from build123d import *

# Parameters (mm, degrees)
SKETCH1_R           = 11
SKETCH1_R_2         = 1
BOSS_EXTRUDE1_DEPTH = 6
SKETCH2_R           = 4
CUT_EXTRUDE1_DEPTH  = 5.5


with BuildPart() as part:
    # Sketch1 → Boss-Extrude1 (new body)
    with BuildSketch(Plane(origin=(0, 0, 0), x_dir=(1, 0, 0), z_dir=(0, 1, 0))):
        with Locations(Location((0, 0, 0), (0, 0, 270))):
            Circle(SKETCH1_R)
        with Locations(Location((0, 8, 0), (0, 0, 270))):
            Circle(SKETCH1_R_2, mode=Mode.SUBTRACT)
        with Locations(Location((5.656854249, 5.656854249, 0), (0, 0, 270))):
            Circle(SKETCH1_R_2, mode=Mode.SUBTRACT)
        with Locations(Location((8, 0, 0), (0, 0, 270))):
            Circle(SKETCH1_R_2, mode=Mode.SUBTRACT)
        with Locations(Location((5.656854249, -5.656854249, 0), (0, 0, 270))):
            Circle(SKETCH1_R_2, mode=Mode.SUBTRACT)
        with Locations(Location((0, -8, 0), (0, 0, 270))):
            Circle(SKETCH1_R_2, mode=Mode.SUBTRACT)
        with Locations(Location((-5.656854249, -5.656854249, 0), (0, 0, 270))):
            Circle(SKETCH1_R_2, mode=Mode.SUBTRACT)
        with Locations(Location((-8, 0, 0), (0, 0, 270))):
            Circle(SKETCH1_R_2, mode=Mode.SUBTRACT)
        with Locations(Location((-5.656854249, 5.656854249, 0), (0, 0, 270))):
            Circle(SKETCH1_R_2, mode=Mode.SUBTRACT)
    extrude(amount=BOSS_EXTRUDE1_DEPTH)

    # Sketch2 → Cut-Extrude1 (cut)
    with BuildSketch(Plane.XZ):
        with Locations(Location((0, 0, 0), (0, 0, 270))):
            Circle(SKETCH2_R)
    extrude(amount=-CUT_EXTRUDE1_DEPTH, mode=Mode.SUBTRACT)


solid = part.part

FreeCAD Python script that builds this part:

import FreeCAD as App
import Part
import Sketcher
from FreeCAD import Vector

doc = App.newDocument("Part")
body = doc.addObject("PartDesign::Body", "Body")

# Sketch on XZ plane
sketch1 = doc.addObject("Sketcher::SketchObject", "Sketch")
body.addObject(sketch1)
sketch1.AttachmentSupport = (doc.XZ_Plane, [""])
sketch1.MapMode = "FlatFace"
sketch1.addGeometry([
    Part.Circle(Vector(0, 0, 0), Vector(0, 0, 1), 11),  # 0
    Part.Circle(Vector(-5.7, -5.7, 0), Vector(0, 0, 1), 1),  # 1
    Part.Circle(Vector(0, -8, 0), Vector(0, 0, 1), 1),  # 2
    Part.Circle(Vector(-8, 0, 0), Vector(0, 0, 1), 1),  # 3
    Part.Circle(Vector(-5.7, 5.7, 0), Vector(0, 0, 1), 1),  # 4
    Part.Circle(Vector(5.7, -5.7, 0), Vector(0, 0, 1), 1),  # 5
    Part.Circle(Vector(8, 0, 0), Vector(0, 0, 1), 1),  # 6
    Part.Circle(Vector(0, 8, 0), Vector(0, 0, 1), 1),  # 7
    Part.Circle(Vector(5.7, 5.7, 0), Vector(0, 0, 1), 1),  # 8
], False)
sketch1.addConstraint([
    Sketcher.Constraint("Coincident", 0, 3, -1, 1),
    Sketcher.Constraint("Equal", 1, 2),
    Sketcher.Constraint("Equal", 2, 3),
    Sketcher.Constraint("Equal", 3, 4),
    Sketcher.Constraint("Equal", 4, 5),
    Sketcher.Constraint("Equal", 5, 6),
    Sketcher.Constraint("Equal", 6, 7),
    Sketcher.Constraint("Equal", 7, 8),
    Sketcher.Constraint("Symmetric", 4, 3, 5, 3, -1, 1),
    Sketcher.Constraint("Symmetric", 3, 3, 6, 3, -1, 1),
    Sketcher.Constraint("Symmetric", 2, 3, 7, 3, -1, 1),
    Sketcher.Constraint("Symmetric", 1, 3, 8, 3, -1, 1),
    Sketcher.Constraint("Symmetric", 1, 3, 5, 3, -2),
    Sketcher.Constraint("PointOnObject", 2, 3, -2),
    Sketcher.Constraint("PointOnObject", 3, 3, -1),
    Sketcher.Constraint("Diameter", 0, 22.0),
    Sketcher.Constraint("Diameter", 1, 2.0),
    Sketcher.Constraint("DistanceY", 2, 3, -1, 1, 8.0),
    Sketcher.Constraint("DistanceX", 3, 3, -1, 1, 8.0),
    Sketcher.Constraint("DistanceY", 1, 3, 4, 3, 11.313708),
    Sketcher.Constraint("DistanceX", 1, 3, 5, 3, 11.313708),
])
pad1 = doc.addObject("PartDesign::Pad", "Pad")
body.addObject(pad1)
pad1.Profile = sketch1
pad1.Length = 6
pad1.Reversed = True

# Sketch on XZ plane
sketch2 = doc.addObject("Sketcher::SketchObject", "Sketch001")
body.addObject(sketch2)
sketch2.AttachmentSupport = (doc.XZ_Plane, [""])
sketch2.MapMode = "FlatFace"
sketch2.addGeometry(Part.Circle(Vector(0, 0, 0), Vector(0, 0, 1), 4), False)
sketch2.addConstraint([
    Sketcher.Constraint("Coincident", 0, 3, -1, 1),
    Sketcher.Constraint("Diameter", 0, 8.0),
])
pocket1 = doc.addObject("PartDesign::Pocket", "Pocket")
body.addObject(pocket1)
pocket1.Profile = sketch2
pocket1.Length = 5.5

doc.recompute()
